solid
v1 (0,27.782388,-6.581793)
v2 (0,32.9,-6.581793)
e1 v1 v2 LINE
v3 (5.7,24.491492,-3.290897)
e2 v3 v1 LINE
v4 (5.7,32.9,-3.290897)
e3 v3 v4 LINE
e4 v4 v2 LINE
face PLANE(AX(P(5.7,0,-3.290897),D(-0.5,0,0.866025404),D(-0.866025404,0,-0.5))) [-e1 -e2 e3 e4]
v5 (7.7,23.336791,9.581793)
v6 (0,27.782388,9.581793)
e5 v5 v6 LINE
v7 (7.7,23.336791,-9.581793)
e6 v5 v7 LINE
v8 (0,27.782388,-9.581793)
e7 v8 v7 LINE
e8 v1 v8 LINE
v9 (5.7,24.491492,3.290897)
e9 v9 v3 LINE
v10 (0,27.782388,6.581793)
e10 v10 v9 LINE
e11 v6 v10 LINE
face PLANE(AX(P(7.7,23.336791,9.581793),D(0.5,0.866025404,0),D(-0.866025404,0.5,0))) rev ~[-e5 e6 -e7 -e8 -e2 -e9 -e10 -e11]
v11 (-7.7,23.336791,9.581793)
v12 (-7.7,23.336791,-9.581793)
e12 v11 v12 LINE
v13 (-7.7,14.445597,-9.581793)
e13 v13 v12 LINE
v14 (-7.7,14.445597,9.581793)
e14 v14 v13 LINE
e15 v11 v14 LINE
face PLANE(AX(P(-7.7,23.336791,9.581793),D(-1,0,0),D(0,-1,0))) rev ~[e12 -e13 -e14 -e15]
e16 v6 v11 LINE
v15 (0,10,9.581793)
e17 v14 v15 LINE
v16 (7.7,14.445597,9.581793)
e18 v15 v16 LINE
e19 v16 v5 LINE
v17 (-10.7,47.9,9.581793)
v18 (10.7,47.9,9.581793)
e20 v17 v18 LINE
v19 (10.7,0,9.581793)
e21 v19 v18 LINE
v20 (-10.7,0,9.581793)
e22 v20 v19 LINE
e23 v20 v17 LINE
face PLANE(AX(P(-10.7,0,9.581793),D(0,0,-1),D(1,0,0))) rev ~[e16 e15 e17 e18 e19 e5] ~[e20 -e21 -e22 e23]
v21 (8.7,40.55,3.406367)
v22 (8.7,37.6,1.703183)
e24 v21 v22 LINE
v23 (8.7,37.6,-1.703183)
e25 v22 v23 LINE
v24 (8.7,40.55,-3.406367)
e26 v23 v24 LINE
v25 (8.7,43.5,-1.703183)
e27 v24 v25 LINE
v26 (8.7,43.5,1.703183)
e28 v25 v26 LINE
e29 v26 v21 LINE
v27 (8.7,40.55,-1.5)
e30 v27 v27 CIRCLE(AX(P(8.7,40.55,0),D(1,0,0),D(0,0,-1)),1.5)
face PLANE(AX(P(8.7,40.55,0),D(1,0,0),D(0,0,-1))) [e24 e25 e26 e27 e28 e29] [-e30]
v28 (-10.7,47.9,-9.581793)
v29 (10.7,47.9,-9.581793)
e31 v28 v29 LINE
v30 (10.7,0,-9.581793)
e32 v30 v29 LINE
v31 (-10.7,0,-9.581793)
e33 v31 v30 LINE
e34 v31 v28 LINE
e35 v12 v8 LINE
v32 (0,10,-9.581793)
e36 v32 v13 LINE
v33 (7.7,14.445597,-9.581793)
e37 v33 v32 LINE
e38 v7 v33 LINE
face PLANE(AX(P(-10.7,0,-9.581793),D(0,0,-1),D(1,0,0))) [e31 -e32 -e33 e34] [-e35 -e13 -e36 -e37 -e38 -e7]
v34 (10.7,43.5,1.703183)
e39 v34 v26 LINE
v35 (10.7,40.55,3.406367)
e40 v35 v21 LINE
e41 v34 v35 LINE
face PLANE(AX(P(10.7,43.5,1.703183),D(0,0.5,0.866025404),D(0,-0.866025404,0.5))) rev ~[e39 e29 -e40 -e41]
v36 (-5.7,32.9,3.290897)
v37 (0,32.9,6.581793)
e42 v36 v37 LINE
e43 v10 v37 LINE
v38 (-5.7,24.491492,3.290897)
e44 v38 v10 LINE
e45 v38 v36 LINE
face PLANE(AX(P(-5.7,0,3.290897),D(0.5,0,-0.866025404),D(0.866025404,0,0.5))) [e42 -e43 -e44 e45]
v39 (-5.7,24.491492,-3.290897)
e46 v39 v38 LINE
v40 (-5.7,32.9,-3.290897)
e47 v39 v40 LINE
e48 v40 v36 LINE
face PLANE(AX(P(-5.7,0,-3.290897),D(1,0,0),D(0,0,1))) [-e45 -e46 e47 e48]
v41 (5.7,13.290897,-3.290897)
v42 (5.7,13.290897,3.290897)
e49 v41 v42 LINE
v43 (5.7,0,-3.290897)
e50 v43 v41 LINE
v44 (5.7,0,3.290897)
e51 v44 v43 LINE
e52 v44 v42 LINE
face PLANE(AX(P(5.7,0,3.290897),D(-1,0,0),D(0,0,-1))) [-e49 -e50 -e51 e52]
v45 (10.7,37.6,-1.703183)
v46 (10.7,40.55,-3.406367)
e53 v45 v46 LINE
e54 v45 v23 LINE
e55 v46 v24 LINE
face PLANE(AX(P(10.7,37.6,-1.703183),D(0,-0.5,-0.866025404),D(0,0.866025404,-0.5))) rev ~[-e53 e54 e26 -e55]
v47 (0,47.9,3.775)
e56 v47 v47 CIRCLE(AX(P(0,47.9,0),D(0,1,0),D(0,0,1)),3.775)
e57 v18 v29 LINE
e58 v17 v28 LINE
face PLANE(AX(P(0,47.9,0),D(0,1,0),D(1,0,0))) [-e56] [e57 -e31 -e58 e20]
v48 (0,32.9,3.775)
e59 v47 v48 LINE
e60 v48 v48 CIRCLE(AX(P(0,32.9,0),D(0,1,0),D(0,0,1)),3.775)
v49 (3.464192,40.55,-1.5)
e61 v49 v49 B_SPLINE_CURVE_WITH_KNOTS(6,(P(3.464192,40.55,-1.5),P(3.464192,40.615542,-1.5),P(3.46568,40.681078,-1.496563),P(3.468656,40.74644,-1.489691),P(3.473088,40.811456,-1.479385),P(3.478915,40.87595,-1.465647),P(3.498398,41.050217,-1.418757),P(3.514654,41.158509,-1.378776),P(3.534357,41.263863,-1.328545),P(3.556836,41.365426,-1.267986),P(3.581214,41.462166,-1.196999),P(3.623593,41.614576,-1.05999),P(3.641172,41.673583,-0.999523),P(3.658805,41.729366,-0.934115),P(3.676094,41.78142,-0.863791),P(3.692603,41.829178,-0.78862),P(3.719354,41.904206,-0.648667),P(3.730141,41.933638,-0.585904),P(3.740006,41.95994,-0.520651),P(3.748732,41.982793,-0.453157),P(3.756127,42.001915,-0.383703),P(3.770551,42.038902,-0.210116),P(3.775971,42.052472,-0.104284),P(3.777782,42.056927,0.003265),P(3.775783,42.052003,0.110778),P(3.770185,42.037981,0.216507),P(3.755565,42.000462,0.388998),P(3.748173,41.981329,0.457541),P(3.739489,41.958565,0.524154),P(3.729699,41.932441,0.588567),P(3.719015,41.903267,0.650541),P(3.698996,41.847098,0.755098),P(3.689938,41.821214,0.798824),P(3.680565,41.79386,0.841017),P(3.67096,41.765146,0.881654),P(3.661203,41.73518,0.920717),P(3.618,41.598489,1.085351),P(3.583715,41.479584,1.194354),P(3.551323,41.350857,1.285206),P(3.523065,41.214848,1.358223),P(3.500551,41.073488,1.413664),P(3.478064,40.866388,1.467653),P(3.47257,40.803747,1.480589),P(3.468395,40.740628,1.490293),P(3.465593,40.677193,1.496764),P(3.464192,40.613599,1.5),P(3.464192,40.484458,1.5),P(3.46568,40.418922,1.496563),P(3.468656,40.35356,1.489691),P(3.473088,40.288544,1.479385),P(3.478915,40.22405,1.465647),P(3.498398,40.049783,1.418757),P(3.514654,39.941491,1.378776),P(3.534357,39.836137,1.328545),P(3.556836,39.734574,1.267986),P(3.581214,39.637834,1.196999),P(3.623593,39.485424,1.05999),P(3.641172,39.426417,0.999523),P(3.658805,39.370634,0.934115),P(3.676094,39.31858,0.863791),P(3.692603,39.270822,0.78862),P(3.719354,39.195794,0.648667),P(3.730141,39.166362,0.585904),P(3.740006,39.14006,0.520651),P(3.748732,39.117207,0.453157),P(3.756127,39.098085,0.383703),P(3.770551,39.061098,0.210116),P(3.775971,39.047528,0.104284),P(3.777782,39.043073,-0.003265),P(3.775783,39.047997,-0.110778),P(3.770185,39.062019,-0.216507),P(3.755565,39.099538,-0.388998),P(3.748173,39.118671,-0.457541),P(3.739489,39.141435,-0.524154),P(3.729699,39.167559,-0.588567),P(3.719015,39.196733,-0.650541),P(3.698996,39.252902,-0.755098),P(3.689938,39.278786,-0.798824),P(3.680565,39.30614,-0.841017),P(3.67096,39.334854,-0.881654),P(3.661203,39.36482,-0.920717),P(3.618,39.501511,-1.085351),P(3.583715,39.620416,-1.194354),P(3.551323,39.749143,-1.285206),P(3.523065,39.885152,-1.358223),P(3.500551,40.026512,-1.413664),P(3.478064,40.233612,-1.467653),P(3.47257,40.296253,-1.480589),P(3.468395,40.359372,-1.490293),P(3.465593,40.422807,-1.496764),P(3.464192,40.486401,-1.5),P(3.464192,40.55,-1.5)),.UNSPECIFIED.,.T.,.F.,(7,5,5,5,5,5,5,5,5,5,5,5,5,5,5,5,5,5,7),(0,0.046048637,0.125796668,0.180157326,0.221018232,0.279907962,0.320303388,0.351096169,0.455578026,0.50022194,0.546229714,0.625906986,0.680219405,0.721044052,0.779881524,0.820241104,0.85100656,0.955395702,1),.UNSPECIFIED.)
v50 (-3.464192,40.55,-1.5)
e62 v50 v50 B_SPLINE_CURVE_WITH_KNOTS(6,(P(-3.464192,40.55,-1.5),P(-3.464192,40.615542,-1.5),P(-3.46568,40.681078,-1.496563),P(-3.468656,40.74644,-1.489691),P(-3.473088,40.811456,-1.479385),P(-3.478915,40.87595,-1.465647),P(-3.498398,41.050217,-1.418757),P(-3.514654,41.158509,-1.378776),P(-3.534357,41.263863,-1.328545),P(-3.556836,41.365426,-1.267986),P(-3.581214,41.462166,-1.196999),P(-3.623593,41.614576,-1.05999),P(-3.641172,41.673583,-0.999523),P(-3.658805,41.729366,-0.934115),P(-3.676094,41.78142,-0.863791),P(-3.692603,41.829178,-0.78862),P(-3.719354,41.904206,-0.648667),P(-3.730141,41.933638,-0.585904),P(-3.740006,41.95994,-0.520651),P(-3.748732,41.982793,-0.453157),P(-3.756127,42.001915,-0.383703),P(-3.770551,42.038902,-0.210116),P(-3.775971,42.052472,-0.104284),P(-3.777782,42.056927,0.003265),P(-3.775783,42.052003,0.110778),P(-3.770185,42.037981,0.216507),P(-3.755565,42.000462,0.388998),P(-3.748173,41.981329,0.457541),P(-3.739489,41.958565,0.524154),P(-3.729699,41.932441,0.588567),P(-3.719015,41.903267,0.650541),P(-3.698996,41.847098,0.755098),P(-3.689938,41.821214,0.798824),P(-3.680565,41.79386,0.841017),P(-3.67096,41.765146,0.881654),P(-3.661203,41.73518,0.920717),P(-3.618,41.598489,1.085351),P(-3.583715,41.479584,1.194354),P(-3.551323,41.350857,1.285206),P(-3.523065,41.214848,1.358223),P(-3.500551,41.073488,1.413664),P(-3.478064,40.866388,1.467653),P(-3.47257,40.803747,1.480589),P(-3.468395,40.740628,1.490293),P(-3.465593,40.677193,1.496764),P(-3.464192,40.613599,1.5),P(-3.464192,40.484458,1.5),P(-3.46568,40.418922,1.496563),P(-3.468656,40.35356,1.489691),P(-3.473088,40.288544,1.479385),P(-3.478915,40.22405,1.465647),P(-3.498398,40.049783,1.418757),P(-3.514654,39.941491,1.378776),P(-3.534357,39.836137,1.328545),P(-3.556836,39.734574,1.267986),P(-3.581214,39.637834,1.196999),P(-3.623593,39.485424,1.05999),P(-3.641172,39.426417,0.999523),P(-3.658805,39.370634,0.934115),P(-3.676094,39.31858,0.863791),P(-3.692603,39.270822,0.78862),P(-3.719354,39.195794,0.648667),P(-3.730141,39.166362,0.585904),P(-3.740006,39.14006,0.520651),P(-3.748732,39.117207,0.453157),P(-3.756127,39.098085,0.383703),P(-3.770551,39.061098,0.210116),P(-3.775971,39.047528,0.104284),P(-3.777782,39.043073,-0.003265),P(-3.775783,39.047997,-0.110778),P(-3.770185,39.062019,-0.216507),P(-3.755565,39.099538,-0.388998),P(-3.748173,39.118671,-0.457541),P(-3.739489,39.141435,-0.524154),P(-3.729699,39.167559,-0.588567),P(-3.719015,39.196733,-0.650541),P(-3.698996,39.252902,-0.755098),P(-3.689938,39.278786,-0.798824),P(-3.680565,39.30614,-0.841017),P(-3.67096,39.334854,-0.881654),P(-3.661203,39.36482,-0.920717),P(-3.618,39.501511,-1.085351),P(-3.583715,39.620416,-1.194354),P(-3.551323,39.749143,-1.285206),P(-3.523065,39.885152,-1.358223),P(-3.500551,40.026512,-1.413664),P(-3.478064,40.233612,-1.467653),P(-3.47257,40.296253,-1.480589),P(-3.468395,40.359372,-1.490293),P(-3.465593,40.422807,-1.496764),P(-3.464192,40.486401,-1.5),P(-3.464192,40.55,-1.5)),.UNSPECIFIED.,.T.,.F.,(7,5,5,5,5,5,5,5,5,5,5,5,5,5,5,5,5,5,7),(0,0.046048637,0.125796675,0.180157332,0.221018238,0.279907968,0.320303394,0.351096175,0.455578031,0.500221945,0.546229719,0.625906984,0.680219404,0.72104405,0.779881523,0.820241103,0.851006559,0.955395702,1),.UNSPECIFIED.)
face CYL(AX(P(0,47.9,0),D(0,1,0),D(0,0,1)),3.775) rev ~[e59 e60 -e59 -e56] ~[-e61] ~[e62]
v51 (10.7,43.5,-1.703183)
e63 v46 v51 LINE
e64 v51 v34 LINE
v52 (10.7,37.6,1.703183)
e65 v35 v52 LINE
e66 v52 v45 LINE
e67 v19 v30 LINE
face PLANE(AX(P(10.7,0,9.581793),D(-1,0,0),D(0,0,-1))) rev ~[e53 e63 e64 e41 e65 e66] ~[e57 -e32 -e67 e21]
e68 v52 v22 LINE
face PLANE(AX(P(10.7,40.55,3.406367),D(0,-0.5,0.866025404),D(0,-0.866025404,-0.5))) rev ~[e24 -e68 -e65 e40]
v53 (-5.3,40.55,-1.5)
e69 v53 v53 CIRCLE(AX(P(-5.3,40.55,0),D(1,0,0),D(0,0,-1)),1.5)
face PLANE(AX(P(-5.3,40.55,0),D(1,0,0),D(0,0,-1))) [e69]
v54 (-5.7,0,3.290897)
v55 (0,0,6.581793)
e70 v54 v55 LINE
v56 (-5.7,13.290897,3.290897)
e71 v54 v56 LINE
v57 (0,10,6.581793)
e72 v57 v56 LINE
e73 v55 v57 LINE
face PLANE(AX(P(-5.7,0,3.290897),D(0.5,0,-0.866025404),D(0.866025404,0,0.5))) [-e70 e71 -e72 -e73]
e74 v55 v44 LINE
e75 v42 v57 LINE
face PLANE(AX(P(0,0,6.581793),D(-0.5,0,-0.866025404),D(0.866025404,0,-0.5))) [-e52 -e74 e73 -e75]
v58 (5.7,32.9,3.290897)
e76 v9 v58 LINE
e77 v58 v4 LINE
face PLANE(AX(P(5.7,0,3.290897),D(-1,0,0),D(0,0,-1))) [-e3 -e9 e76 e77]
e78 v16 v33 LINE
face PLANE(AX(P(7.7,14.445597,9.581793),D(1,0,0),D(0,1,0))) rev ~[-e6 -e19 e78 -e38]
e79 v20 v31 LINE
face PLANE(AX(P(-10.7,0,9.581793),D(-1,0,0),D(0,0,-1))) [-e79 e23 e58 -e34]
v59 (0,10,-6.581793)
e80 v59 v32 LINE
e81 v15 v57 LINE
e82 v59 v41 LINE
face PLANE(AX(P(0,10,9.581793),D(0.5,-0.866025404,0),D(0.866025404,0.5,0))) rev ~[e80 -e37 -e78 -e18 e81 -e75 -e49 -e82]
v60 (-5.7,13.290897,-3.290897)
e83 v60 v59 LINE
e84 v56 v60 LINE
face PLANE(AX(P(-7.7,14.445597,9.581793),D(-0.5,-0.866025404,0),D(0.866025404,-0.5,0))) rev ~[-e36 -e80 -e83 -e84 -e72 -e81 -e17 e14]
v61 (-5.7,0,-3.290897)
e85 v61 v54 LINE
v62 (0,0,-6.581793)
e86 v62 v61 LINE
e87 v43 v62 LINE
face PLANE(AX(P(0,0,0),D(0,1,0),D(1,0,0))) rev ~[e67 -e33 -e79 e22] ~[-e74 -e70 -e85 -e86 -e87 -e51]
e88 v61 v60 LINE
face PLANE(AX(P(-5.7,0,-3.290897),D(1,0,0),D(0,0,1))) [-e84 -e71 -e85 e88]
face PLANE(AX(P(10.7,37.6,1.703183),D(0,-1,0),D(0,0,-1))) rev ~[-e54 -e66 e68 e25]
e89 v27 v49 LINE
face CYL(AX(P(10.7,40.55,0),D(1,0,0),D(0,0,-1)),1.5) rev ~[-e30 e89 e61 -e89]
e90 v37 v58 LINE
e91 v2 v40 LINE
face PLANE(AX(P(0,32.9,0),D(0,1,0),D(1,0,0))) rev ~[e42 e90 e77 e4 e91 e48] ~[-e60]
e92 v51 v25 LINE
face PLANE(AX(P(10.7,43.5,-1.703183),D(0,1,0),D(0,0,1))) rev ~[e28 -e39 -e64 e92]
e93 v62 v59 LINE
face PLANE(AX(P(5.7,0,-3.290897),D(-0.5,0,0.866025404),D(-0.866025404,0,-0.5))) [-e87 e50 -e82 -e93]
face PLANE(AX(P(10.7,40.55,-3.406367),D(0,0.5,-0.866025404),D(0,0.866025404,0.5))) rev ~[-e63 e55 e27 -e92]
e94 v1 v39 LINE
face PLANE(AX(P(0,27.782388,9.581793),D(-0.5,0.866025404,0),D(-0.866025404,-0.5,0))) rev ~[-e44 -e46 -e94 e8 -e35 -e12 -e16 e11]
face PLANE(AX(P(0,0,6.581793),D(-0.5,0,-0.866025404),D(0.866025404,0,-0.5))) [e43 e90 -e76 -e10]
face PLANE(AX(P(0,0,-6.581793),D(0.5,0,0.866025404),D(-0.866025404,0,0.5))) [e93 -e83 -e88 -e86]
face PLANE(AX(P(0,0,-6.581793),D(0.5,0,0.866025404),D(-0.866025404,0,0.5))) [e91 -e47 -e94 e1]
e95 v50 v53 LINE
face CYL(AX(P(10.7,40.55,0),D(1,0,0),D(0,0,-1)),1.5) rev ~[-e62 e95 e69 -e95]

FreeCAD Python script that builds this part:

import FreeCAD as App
import Part
import Sketcher

V = App.Vector
Q = App.Units.Quantity

doc = App.newDocument("Part")
body = doc.addObject("PartDesign::Body", "Body")

# Sketch on XZ plane
sketch1 = body.newObject("Sketcher::SketchObject", "Sketch")
sketch1.AttachmentSupport = (doc.getObject("XZ_Plane"), [""])
sketch1.MapMode = "FlatFace"
sketch1.addGeometry(Part.LineSegment(V(-11, -10, 0), V(-11, 10, 0)), False)
sketch1.addGeometry(Part.LineSegment(V(-11, 10, 0), V(11, 10, 0)), False)
sketch1.addGeometry(Part.LineSegment(V(11, 10, 0), V(11, -10, 0)), False)
sketch1.addGeometry(Part.LineSegment(V(11, -10, 0), V(-11, -10, 0)), False)
sketch1.addConstraint(Sketcher.Constraint("Coincident", 0, 2, 1, 1))
sketch1.addConstraint(Sketcher.Constraint("Coincident", 1, 2, 2, 1))
sketch1.addConstraint(Sketcher.Constraint("Coincident", 2, 2, 3, 1))
sketch1.addConstraint(Sketcher.Constraint("Coincident", 3, 2, 0, 1))
sketch1.addConstraint(Sketcher.Constraint("Vertical", 0))
sketch1.addConstraint(Sketcher.Constraint("Horizontal", 1))
sketch1.addConstraint(Sketcher.Constraint("Vertical", 2))
sketch1.addConstraint(Sketcher.Constraint("Horizontal", 3))
sketch1.addConstraint(Sketcher.Constraint("Symmetric", 0, 2, 2, 2, -1, 1))
sketch1.addConstraint(Sketcher.Constraint("DistanceX", 1, 1, 1, 2, Q("21.4 mm")))
sketch1.addConstraint(Sketcher.Constraint("DistanceY", 0, 1, 0, 2, Q("19.163586 mm")))
pad1 = body.newObject("PartDesign::Pad", "Pad")
pad1.Profile = sketch1
pad1.Length = 47.9
pad1.Reversed = True

# Sketch on XZ plane
sketch2 = body.newObject("Sketcher::SketchObject", "Sketch001")
sketch2.AttachmentSupport = (doc.getObject("XZ_Plane"), [""])
sketch2.MapMode = "FlatFace"
sketch2.addGeometry(Part.LineSegment(V(0, 7, 0), V(-6, 3, 0)), False)
sketch2.addGeometry(Part.LineSegment(V(-6, 3, 0), V(-6, -3, 0)), False)
sketch2.addGeometry(Part.LineSegment(V(-6, -3, 0), V(0, -7, 0)), False)
sketch2.addGeometry(Part.LineSegment(V(0, -7, 0), V(6, -3, 0)), False)
sketch2.addGeometry(Part.LineSegment(V(6, -3, 0), V(6, 3, 0)), False)
sketch2.addGeometry(Part.LineSegment(V(6, 3, 0), V(0, 7, 0)), False)
sketch2.addConstraint(Sketcher.Constraint("Coincident", 0, 2, 1, 1))
sketch2.addConstraint(Sketcher.Constraint("Coincident", 1, 2, 2, 1))
sketch2.addConstraint(Sketcher.Constraint("Coincident", 2, 2, 3, 1))
sketch2.addConstraint(Sketcher.Constraint("Coincident", 3, 2, 4, 1))
sketch2.addConstraint(Sketcher.Constraint("Coincident", 4, 2, 5, 1))
sketch2.addConstraint(Sketcher.Constraint("Coincident", 5, 2, 0, 1))
sketch2.addConstraint(Sketcher.Constraint("Vertical", 1))
sketch2.addConstraint(Sketcher.Constraint("Vertical", 4))
sketch2.addConstraint(Sketcher.Constraint("Symmetric", 0, 2, 3, 2, -1, 1))
sketch2.addConstraint(Sketcher.Constraint("Symmetric", 2, 2, 5, 2, -1, 1))
sketch2.addConstraint(Sketcher.Constraint("PointOnObject", 2, 2, -2))
sketch2.addConstraint(Sketcher.Constraint("Parallel", 2, 5))
sketch2.addConstraint(Sketcher.Constraint("Horizontal", 1, 2, 3, 2))
sketch2.addConstraint(Sketcher.Constraint("Angle", 0, Q("-150 deg")))
sketch2.addConstraint(Sketcher.Constraint("DistanceX", 0, 2, -1, 1, Q("5.7 mm")))
sketch2.addConstraint(Sketcher.Constraint("DistanceY", 1, 2, 1, 1, Q("6.581793 mm")))
pocket1 = body.newObject("PartDesign::Pocket", "Pocket")
pocket1.Profile = sketch2
pocket1.Length = 32.9

# Sketch on XZ plane
sketch3 = body.newObject("Sketcher::SketchObject", "Sketch002")
sketch3.AttachmentSupport = (doc.getObject("XZ_Plane"), [""])
sketch3.MapMode = "FlatFace"
sketch3.AttachmentOffset = App.Placement(V(0, 0, -47.9), App.Rotation())
sketch3.addGeometry(Part.Circle(V(0, 0, 0), V(0, 0, 1), 3.8), False)
sketch3.addConstraint(Sketcher.Constraint("Coincident", 0, 3, -1, 1))
sketch3.addConstraint(Sketcher.Constraint("Diameter", 0, Q("7.55 mm")))
pocket2 = body.newObject("PartDesign::Pocket", "Pocket001")
pocket2.Profile = sketch3
pocket2.Type = "UpToFirst"
pocket2.Reversed = True

# Sketch on XY plane
sketch4 = body.newObject("Sketcher::SketchObject", "Sketch003")
sketch4.AttachmentSupport = (doc.getObject("XY_Plane"), [""])
sketch4.MapMode = "FlatFace"
sketch4.AttachmentOffset = App.Placement(V(0, 0, 9.581793), App.Rotation())
sketch4.addGeometry(Part.LineSegment(V(0, 28, 0), V(-8, 23, 0)), False)
sketch4.addGeometry(Part.LineSegment(V(-8, 23, 0), V(-8, 14, 0)), False)
sketch4.addGeometry(Part.LineSegment(V(-8, 14, 0), V(0, 10, 0)), False)
sketch4.addGeometry(Part.LineSegment(V(0, 10, 0), V(8, 14, 0)), False)
sketch4.addGeometry(Part.LineSegment(V(8, 14, 0), V(8, 23, 0)), False)
sketch4.addGeometry(Part.LineSegment(V(8, 23, 0), V(0, 28, 0)), False)
sketch4.addConstraint(Sketcher.Constraint("Coincident", 0, 2, 1, 1))
sketch4.addConstraint(Sketcher.Constraint("Coincident", 1, 2, 2, 1))
sketch4.addConstraint(Sketcher.Constraint("Coincident", 2, 2, 3, 1))
sketch4.addConstraint(Sketcher.Constraint("Coincident", 3, 2, 4, 1))
sketch4.addConstraint(Sketcher.Constraint("Coincident", 4, 2, 5, 1))
sketch4.addConstraint(Sketcher.Constraint("Coincident", 5, 2, 0, 1))
sketch4.addConstraint(Sketcher.Constraint("Vertical", 1))
sketch4.addConstraint(Sketcher.Constraint("Vertical", 4))
sketch4.addConstraint(Sketcher.Constraint("Symmetric", 1, 2, 3, 2, -2))
sketch4.addConstraint(Sketcher.Constraint("PointOnObject", 2, 2, -2))
sketch4.addConstraint(Sketcher.Constraint("PointOnObject", 5, 2, -2))
sketch4.addConstraint(Sketcher.Constraint("Parallel", 0, 3))
sketch4.addConstraint(Sketcher.Constraint("Parallel", 2, 5))
sketch4.addConstraint(Sketcher.Constraint("Angle", 0, Q("-150 deg")))
sketch4.addConstraint(Sketcher.Constraint("DistanceY", -1, 1, 2, 2, Q("10 mm")))
sketch4.addConstraint(Sketcher.Constraint("DistanceX", 0, 2, -1, 1, Q("7.7 mm")))
sketch4.addConstraint(Sketcher.Constraint("DistanceY", 1, 2, 1, 1, Q("8.891194 mm")))
pocket3 = body.newObject("PartDesign::Pocket", "Pocket002")
pocket3.Profile = sketch4
pocket3.Type = "ThroughAll"
pocket3.Midplane = True

# Sketch on YZ plane
sketch5 = body.newObject("Sketcher::SketchObject", "Sketch004")
sketch5.AttachmentSupport = (doc.getObject("YZ_Plane"), [""])
sketch5.MapMode = "FlatFace"
sketch5.AttachmentOffset = App.Placement(V(0, 0, 10.7), App.Rotation())
sketch5.addGeometry(Part.Circle(V(40.5, 0, 0), V(0, 0, 1), 1.5), False)
sketch5.addConstraint(Sketcher.Constraint("PointOnObject", 0, 3, -1))
sketch5.addConstraint(Sketcher.Constraint("Diameter", 0, Q("3 mm")))
sketch5.addConstraint(Sketcher.Constraint("DistanceX", -1, 1, 0, 3, Q("40.55 mm")))
pocket4 = body.newObject("PartDesign::Pocket", "Pocket003")
pocket4.Profile = sketch5
pocket4.Length = 16

# Sketch on YZ plane
sketch6 = body.newObject("Sketcher::SketchObject", "Sketch005")
sketch6.AttachmentSupport = (doc.getObject("YZ_Plane"), [""])
sketch6.MapMode = "FlatFace"
sketch6.AttachmentOffset = App.Placement(V(0, 0, 10.7), App.Rotation())
sketch6.addGeometry(Part.LineSegment(V(43.5, -1.7, 0), V(43.5, 1.7, 0)), False)
sketch6.addGeometry(Part.LineSegment(V(43.5, 1.7, 0), V(40.5, 3.4, 0)), False)
sketch6.addGeometry(Part.LineSegment(V(40.5, 3.4, 0), V(37.6, 1.7, 0)), False)
sketch6.addGeometry(Part.LineSegment(V(37.6, 1.7, 0), V(37.6, -1.7, 0)), False)
sketch6.addGeometry(Part.LineSegment(V(37.6, -1.7, 0), V(40.5, -3.4, 0)), False)
sketch6.addGeometry(Part.LineSegment(V(40.5, -3.4, 0), V(43.5, -1.7, 0)), False)
sketch6.addConstraint(Sketcher.Constraint("Coincident", 0, 2, 1, 1))
sketch6.addConstraint(Sketcher.Constraint("Coincident", 1, 2, 2, 1))
sketch6.addConstraint(Sketcher.Constraint("Coincident", 2, 2, 3, 1))
sketch6.addConstraint(Sketcher.Constraint("Coincident", 3, 2, 4, 1))
sketch6.addConstraint(Sketcher.Constraint("Coincident", 4, 2, 5, 1))
sketch6.addConstraint(Sketcher.Constraint("Coincident", 5, 2, 0, 1))
sketch6.addConstraint(Sketcher.Constraint("Vertical", 0))
sketch6.addConstraint(Sketcher.Constraint("Vertical", 3))
sketch6.addConstraint(Sketcher.Constraint("Symmetric", 1, 2, 4, 2, -1))
sketch6.addConstraint(Sketcher.Constraint("Parallel", 1, 4))
sketch6.addConstraint(Sketcher.Constraint("Parallel", 2, 5))
sketch6.addConstraint(Sketcher.Constraint("Horizontal", 0, 2, 2, 2))
sketch6.addConstraint(Sketcher.Constraint("Horizontal", 3, 2, 5, 2))
sketch6.addConstraint(Sketcher.Constraint("Angle", 1, Q("150 deg")))
sketch6.addConstraint(Sketcher.Constraint("DistanceX", -1, 1, 0, 2, Q("43.5 mm")))
sketch6.addConstraint(Sketcher.Constraint("DistanceX", -1, 1, 2, 2, Q("37.6 mm")))
sketch6.addConstraint(Sketcher.Constraint("DistanceY", 0, 1, 0, 2, Q("3.406367 mm")))
pocket5 = body.newObject("PartDesign::Pocket", "Pocket004")
pocket5.Profile = sketch6
pocket5.Length = 2

doc.recompute()
